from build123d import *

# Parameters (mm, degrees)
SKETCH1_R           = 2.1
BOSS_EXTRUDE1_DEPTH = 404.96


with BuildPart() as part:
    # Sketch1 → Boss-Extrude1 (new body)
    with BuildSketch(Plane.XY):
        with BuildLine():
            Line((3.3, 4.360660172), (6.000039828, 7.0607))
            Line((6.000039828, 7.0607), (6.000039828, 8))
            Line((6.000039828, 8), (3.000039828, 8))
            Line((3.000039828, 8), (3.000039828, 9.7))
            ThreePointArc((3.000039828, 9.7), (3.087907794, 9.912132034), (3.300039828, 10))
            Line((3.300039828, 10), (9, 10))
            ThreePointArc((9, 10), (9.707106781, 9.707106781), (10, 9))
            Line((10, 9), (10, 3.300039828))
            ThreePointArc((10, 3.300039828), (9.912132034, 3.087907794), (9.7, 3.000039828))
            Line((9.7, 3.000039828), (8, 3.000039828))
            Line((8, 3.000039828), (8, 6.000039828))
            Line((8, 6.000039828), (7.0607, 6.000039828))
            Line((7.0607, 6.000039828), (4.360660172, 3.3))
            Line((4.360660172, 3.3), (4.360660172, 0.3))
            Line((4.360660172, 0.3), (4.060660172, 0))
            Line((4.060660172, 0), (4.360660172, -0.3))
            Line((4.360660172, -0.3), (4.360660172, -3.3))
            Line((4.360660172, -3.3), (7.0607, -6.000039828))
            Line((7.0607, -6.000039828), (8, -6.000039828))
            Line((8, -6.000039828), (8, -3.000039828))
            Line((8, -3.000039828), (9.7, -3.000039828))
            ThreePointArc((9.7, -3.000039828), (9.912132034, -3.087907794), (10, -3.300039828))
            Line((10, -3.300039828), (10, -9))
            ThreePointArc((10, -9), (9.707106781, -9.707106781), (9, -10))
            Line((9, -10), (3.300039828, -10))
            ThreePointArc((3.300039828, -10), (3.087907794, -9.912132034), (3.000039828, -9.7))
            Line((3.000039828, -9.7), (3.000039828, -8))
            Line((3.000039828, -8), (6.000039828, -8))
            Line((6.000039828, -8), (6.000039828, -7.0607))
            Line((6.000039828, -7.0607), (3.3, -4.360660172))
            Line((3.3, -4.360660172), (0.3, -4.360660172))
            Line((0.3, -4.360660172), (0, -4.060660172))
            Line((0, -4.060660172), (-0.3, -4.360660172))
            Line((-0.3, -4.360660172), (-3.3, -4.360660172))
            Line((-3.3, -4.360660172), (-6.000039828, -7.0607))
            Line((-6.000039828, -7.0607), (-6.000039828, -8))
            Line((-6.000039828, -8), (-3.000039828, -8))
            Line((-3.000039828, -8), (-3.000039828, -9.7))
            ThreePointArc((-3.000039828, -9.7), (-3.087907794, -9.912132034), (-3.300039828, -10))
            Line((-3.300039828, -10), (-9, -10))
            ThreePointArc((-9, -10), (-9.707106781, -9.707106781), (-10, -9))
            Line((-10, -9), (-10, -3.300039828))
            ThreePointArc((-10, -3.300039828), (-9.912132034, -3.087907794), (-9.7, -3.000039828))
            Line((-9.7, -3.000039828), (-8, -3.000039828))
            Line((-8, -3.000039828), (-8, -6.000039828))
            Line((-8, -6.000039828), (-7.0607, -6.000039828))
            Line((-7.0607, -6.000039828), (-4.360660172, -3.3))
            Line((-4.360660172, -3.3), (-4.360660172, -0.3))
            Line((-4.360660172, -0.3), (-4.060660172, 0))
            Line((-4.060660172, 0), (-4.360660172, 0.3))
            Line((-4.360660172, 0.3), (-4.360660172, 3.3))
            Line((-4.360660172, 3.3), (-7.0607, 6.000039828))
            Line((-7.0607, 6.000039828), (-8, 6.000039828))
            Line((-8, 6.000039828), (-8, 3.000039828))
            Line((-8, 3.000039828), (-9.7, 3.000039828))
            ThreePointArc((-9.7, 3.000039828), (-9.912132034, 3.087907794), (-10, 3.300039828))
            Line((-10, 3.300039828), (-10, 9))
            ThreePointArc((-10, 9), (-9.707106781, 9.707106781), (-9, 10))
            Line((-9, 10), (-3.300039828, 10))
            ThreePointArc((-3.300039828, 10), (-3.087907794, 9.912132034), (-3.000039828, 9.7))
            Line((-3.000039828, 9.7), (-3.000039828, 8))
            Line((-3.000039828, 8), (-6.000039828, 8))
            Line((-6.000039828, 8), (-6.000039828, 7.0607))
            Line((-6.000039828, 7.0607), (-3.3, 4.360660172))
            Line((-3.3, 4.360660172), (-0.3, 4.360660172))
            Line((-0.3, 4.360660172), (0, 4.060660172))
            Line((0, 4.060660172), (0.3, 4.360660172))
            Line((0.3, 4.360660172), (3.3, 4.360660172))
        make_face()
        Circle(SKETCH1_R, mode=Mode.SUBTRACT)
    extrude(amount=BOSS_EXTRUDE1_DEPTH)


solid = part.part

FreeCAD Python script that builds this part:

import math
import FreeCAD as App
import Part
import Sketcher

V = App.Vector
Q = App.Units.Quantity

doc = App.newDocument("Part")
body = doc.addObject("PartDesign::Body", "Body")

sketch1 = body.newObject("Sketcher::SketchObject", "Sketch")
sketch1.AttachmentSupport = (doc.getObject("XY_Plane"), [""])
sketch1.MapMode = "FlatFace"
sketch1.addGeometry(Part.LineSegment(V(6.00004, 7.0607, 0), V(3.3, 4.36066, 0)), False)
sketch1.addGeometry(Part.LineSegment(V(3.3, 4.36066, 0), V(0.3, 4.36066, 0)), False)
sketch1.addGeometry(Part.LineSegment(V(0.3, 4.36066, 0), V(0, 4.06066, 0)), False)
sketch1.addGeometry(Part.LineSegment(V(0, 4.06066, 0), V(-0.3, 4.36066, 0)), False)
sketch1.addGeometry(Part.LineSegment(V(-0.3, 4.36066, 0), V(-3.3, 4.36066, 0)), False)
sketch1.addGeometry(Part.LineSegment(V(-3.3, 4.36066, 0), V(-6.00004, 7.0607, 0)), False)
sketch1.addGeometry(Part.LineSegment(V(-6.00004, 7.0607, 0), V(-6.00004, 8, 0)), False)
sketch1.addGeometry(Part.LineSegment(V(-6.00004, 8, 0), V(-3.00004, 8, 0)), False)
sketch1.addGeometry(Part.LineSegment(V(-3.00004, 8, 0), V(-3.00004, 9.7, 0)), False)
sketch1.addGeometry(Part.ArcOfCircle(Part.Circle(V(-3.30004, 9.7, 0), V(0, 0, 1), 0.3), math.radians(0), math.radians(90)), False)
sketch1.addGeometry(Part.LineSegment(V(-3.30004, 10, 0), V(-9, 10, 0)), False)
sketch1.addGeometry(Part.ArcOfCircle(Part.Circle(V(-9, 9, 0), V(0, 0, 1), 1), math.radians(90), math.radians(180)), False)
sketch1.addGeometry(Part.LineSegment(V(-10, 9, 0), V(-10, 3.30004, 0)), False)
sketch1.addGeometry(Part.ArcOfCircle(Part.Circle(V(-9.7, 3.30004, 0), V(0, 0, 1), 0.3), math.radians(-180), math.radians(-90)), False)
sketch1.addGeometry(Part.LineSegment(V(-9.7, 3.00004, 0), V(-8, 3.00004, 0)), False)
sketch1.addGeometry(Part.LineSegment(V(-8, 3.00004, 0), V(-8, 6.00004, 0)), False)
sketch1.addGeometry(Part.LineSegment(V(-8, 6.00004, 0), V(-7.0607, 6.00004, 0)), False)
sketch1.addGeometry(Part.LineSegment(V(-7.0607, 6.00004, 0), V(-4.36066, 3.3, 0)), False)
sketch1.addGeometry(Part.LineSegment(V(-4.36066, 3.3, 0), V(-4.36066, 0.3, 0)), False)
sketch1.addGeometry(Part.LineSegment(V(-4.36066, 0.3, 0), V(-4.06066, 0, 0)), False)
sketch1.addGeometry(Part.LineSegment(V(-4.06066, 0, 0), V(-4.36066, -0.3, 0)), False)
sketch1.addGeometry(Part.LineSegment(V(-4.36066, -0.3, 0), V(-4.36066, -3.3, 0)), False)
sketch1.addGeometry(Part.LineSegment(V(-4.36066, -3.3, 0), V(-7.0607, -6.00004, 0)), False)
sketch1.addGeometry(Part.LineSegment(V(-7.0607, -6.00004, 0), V(-8, -6.00004, 0)), False)
sketch1.addGeometry(Part.LineSegment(V(-8, -6.00004, 0), V(-8, -3.00004, 0)), False)
sketch1.addGeometry(Part.LineSegment(V(-8, -3.00004, 0), V(-9.7, -3.00004, 0)), False)
sketch1.addGeometry(Part.ArcOfCircle(Part.Circle(V(-9.7, -3.30004, 0), V(0, 0, 1), 0.3), math.radians(90), math.radians(180)), False)
sketch1.addGeometry(Part.LineSegment(V(-10, -3.30004, 0), V(-10, -9, 0)), False)
sketch1.addGeometry(Part.ArcOfCircle(Part.Circle(V(-9, -9, 0), V(0, 0, 1), 1), math.radians(-180), math.radians(-90)), False)
sketch1.addGeometry(Part.LineSegment(V(-9, -10, 0), V(-3.30004, -10, 0)), False)
sketch1.addGeometry(Part.ArcOfCircle(Part.Circle(V(-3.30004, -9.7, 0), V(0, 0, 1), 0.3), math.radians(-90), math.radians(0)), False)
sketch1.addGeometry(Part.LineSegment(V(-3.00004, -9.7, 0), V(-3.00004, -8, 0)), False)
sketch1.addGeometry(Part.LineSegment(V(-3.00004, -8, 0), V(-6.00004, -8, 0)), False)
sketch1.addGeometry(Part.LineSegment(V(-6.00004, -8, 0), V(-6.00004, -7.0607, 0)), False)
sketch1.addGeometry(Part.LineSegment(V(-6.00004, -7.0607, 0), V(-3.3, -4.36066, 0)), False)
sketch1.addGeometry(Part.LineSegment(V(-3.3, -4.36066, 0), V(-0.3, -4.36066, 0)), False)
sketch1.addGeometry(Part.LineSegment(V(-0.3, -4.36066, 0), V(0, -4.06066, 0)), False)
sketch1.addGeometry(Part.LineSegment(V(0, -4.06066, 0), V(0.3, -4.36066, 0)), False)
sketch1.addGeometry(Part.LineSegment(V(0.3, -4.36066, 0), V(3.3, -4.36066, 0)), False)
sketch1.addGeometry(Part.LineSegment(V(3.3, -4.36066, 0), V(6.00004, -7.0607, 0)), False)
sketch1.addGeometry(Part.LineSegment(V(6.00004, -7.0607, 0), V(6.00004, -8, 0)), False)
sketch1.addGeometry(Part.LineSegment(V(6.00004, -8, 0), V(3.00004, -8, 0)), False)
sketch1.addGeometry(Part.LineSegment(V(3.00004, -8, 0), V(3.00004, -9.7, 0)), False)
sketch1.addGeometry(Part.ArcOfCircle(Part.Circle(V(3.30004, -9.7, 0), V(0, 0, 1), 0.3), math.radians(-180), math.radians(-90)), False)
sketch1.addGeometry(Part.LineSegment(V(3.30004, -10, 0), V(9, -10, 0)), False)
sketch1.addGeometry(Part.ArcOfCircle(Part.Circle(V(9, -9, 0), V(0, 0, 1), 1), math.radians(-90), math.radians(0)), False)
sketch1.addGeometry(Part.LineSegment(V(10, -9, 0), V(10, -3.30004, 0)), False)
sketch1.addGeometry(Part.ArcOfCircle(Part.Circle(V(9.7, -3.30004, 0), V(0, 0, 1), 0.3), math.radians(0), math.radians(90)), False)
sketch1.addGeometry(Part.LineSegment(V(9.7, -3.00004, 0), V(8, -3.00004, 0)), False)
sketch1.addGeometry(Part.LineSegment(V(8, -3.00004, 0), V(8, -6.00004, 0)), False)
sketch1.addGeometry(Part.LineSegment(V(8, -6.00004, 0), V(7.0607, -6.00004, 0)), False)
sketch1.addGeometry(Part.LineSegment(V(7.0607, -6.00004, 0), V(4.36066, -3.3, 0)), False)
sketch1.addGeometry(Part.LineSegment(V(4.36066, -3.3, 0), V(4.36066, -0.3, 0)), False)
sketch1.addGeometry(Part.LineSegment(V(4.36066, -0.3, 0), V(4.06066, 0, 0)), False)
sketch1.addGeometry(Part.LineSegment(V(4.06066, 0, 0), V(4.36066, 0.3, 0)), False)
sketch1.addGeometry(Part.LineSegment(V(4.36066, 0.3, 0), V(4.36066, 3.3, 0)), False)
sketch1.addGeometry(Part.LineSegment(V(4.36066, 3.3, 0), V(7.0607, 6.00004, 0)), False)
sketch1.addGeometry(Part.LineSegment(V(7.0607, 6.00004, 0), V(8, 6.00004, 0)), False)
sketch1.addGeometry(Part.LineSegment(V(8, 6.00004, 0), V(8, 3.00004, 0)), False)
sketch1.addGeometry(Part.LineSegment(V(8, 3.00004, 0), V(9.7, 3.00004, 0)), False)
sketch1.addGeometry(Part.ArcOfCircle(Part.Circle(V(9.7, 3.30004, 0), V(0, 0, 1), 0.3), math.radians(-90), math.radians(0)), False)
sketch1.addGeometry(Part.LineSegment(V(10, 3.30004, 0), V(10, 9, 0)), False)
sketch1.addGeometry(Part.ArcOfCircle(Part.Circle(V(9, 9, 0), V(0, 0, 1), 1), math.radians(0), math.radians(90)), False)
sketch1.addGeometry(Part.LineSegment(V(9, 10, 0), V(3.30004, 10, 0)), False)
sketch1.addGeometry(Part.ArcOfCircle(Part.Circle(V(3.30004, 9.7, 0), V(0, 0, 1), 0.3), math.radians(90), math.radians(180)), False)
sketch1.addGeometry(Part.LineSegment(V(3.00004, 9.7, 0), V(3.00004, 8, 0)), False)
sketch1.addGeometry(Part.LineSegment(V(3.00004, 8, 0), V(6.00004, 8, 0)), False)
sketch1.addGeometry(Part.LineSegment(V(6.00004, 8, 0), V(6.00004, 7.0607, 0)), False)
sketch1.addGeometry(Part.Circle(V(0, 0, 0), V(0, 0, 1), 2.1), False)
sketch1.addConstraint(Sketcher.Constraint("Coincident", 0, 2, 1, 1))
sketch1.addConstraint(Sketcher.Constraint("Coincident", 1, 2, 2, 1))
sketch1.addConstraint(Sketcher.Constraint("Coincident", 2, 2, 3, 1))
sketch1.addConstraint(Sketcher.Constraint("Coincident", 3, 2, 4, 1))
sketch1.addConstraint(Sketcher.Constraint("Coincident", 4, 2, 5, 1))
sketch1.addConstraint(Sketcher.Constraint("Coincident", 5, 2, 6, 1))
sketch1.addConstraint(Sketcher.Constraint("Coincident", 6, 2, 7, 1))
sketch1.addConstraint(Sketcher.Constraint("Coincident", 7, 2, 8, 1))
sketch1.addConstraint(Sketcher.Constraint("Tangent", 8, 2, 9, 1))
sketch1.addConstraint(Sketcher.Constraint("Tangent", 9, 2, 10, 1))
sketch1.addConstraint(Sketcher.Constraint("Tangent", 10, 2, 11, 1))
sketch1.addConstraint(Sketcher.Constraint("Tangent", 11, 2, 12, 1))
sketch1.addConstraint(Sketcher.Constraint("Tangent", 12, 2, 13, 1))
sketch1.addConstraint(Sketcher.Constraint("Tangent", 13, 2, 14, 1))
sketch1.addConstraint(Sketcher.Constraint("Coincident", 14, 2, 15, 1))
sketch1.addConstraint(Sketcher.Constraint("Coincident", 15, 2, 16, 1))
sketch1.addConstraint(Sketcher.Constraint("Coincident", 16, 2, 17, 1))
sketch1.addConstraint(Sketcher.Constraint("Coincident", 17, 2, 18, 1))
sketch1.addConstraint(Sketcher.Constraint("Coincident", 18, 2, 19, 1))
sketch1.addConstraint(Sketcher.Constraint("Coincident", 19, 2, 20, 1))
sketch1.addConstraint(Sketcher.Constraint("Coincident", 20, 2, 21, 1))
sketch1.addConstraint(Sketcher.Constraint("Coincident", 21, 2, 22, 1))
sketch1.addConstraint(Sketcher.Constraint("Coincident", 22, 2, 23, 1))
sketch1.addConstraint(Sketcher.Constraint("Coincident", 23, 2, 24, 1))
sketch1.addConstraint(Sketcher.Constraint("Coincident", 24, 2, 25, 1))
sketch1.addConstraint(Sketcher.Constraint("Tangent", 25, 2, 26, 1))
sketch1.addConstraint(Sketcher.Constraint("Tangent", 26, 2, 27, 1))
sketch1.addConstraint(Sketcher.Constraint("Tangent", 27, 2, 28, 1))
sketch1.addConstraint(Sketcher.Constraint("Tangent", 28, 2, 29, 1))
sketch1.addConstraint(Sketcher.Constraint("Tangent", 29, 2, 30, 1))
sketch1.addConstraint(Sketcher.Constraint("Tangent", 30, 2, 31, 1))
sketch1.addConstraint(Sketcher.Constraint("Coincident", 31, 2, 32, 1))
sketch1.addConstraint(Sketcher.Constraint("Coincident", 32, 2, 33, 1))
sketch1.addConstraint(Sketcher.Constraint("Coincident", 33, 2, 34, 1))
sketch1.addConstraint(Sketcher.Constraint("Coincident", 34, 2, 35, 1))
sketch1.addConstraint(Sketcher.Constraint("Coincident", 35, 2, 36, 1))
sketch1.addConstraint(Sketcher.Constraint("Coincident", 36, 2, 37, 1))
sketch1.addConstraint(Sketcher.Constraint("Coincident", 37, 2, 38, 1))
sketch1.addConstraint(Sketcher.Constraint("Coincident", 38, 2, 39, 1))
sketch1.addConstraint(Sketcher.Constraint("Coincident", 39, 2, 40, 1))
sketch1.addConstraint(Sketcher.Constraint("Coincident", 40, 2, 41, 1))
sketch1.addConstraint(Sketcher.Constraint("Coincident", 41, 2, 42, 1))
sketch1.addConstraint(Sketcher.Constraint("Tangent", 42, 2, 43, 1))
sketch1.addConstraint(Sketcher.Constraint("Tangent", 43, 2, 44, 1))
sketch1.addConstraint(Sketcher.Constraint("Tangent", 44, 2, 45, 1))
sketch1.addConstraint(Sketcher.Constraint("Tangent", 45, 2, 46, 1))
sketch1.addConstraint(Sketcher.Constraint("Tangent", 46, 2, 47, 1))
sketch1.addConstraint(Sketcher.Constraint("Tangent", 47, 2, 48, 1))
sketch1.addConstraint(Sketcher.Constraint("Coincident", 48, 2, 49, 1))
sketch1.addConstraint(Sketcher.Constraint("Coincident", 49, 2, 50, 1))
sketch1.addConstraint(Sketcher.Constraint("Coincident", 50, 2, 51, 1))
sketch1.addConstraint(Sketcher.Constraint("Coincident", 51, 2, 52, 1))
sketch1.addConstraint(Sketcher.Constraint("Coincident", 52, 2, 53, 1))
sketch1.addConstraint(Sketcher.Constraint("Coincident", 53, 2, 54, 1))
sketch1.addConstraint(Sketcher.Constraint("Coincident", 54, 2, 55, 1))
sketch1.addConstraint(Sketcher.Constraint("Coincident", 55, 2, 56, 1))
sketch1.addConstraint(Sketcher.Constraint("Coincident", 56, 2, 57, 1))
sketch1.addConstraint(Sketcher.Constraint("Coincident", 57, 2, 58, 1))
sketch1.addConstraint(Sketcher.Constraint("Coincident", 58, 2, 59, 1))
sketch1.addConstraint(Sketcher.Constraint("Tangent", 59, 2, 60, 1))
sketch1.addConstraint(Sketcher.Constraint("Tangent", 60, 2, 61, 1))
sketch1.addConstraint(Sketcher.Constraint("Tangent", 61, 2, 62, 1))
sketch1.addConstraint(Sketcher.Constraint("Tangent", 62, 2, 63, 1))
sketch1.addConstraint(Sketcher.Constraint("Tangent", 63, 2, 64, 1))
sketch1.addConstraint(Sketcher.Constraint("Tangent", 64, 2, 65, 1))
sketch1.addConstraint(Sketcher.Constraint("Coincident", 65, 2, 66, 1))
sketch1.addConstraint(Sketcher.Constraint("Coincident", 66, 2, 67, 1))
sketch1.addConstraint(Sketcher.Constraint("Coincident", 67, 2, 0, 1))
sketch1.addConstraint(Sketcher.Constraint("Horizontal", 1))
sketch1.addConstraint(Sketcher.Constraint("Horizontal", 4))
sketch1.addConstraint(Sketcher.Constraint("Vertical", 6))
sketch1.addConstraint(Sketcher.Constraint("Horizontal", 7))
sketch1.addConstraint(Sketcher.Constraint("Vertical", 8))
sketch1.addConstraint(Sketcher.Constraint("Horizontal", 10))
sketch1.addConstraint(Sketcher.Constraint("Vertical", 12))
sketch1.addConstraint(Sketcher.Constraint("Horizontal", 14))
sketch1.addConstraint(Sketcher.Constraint("Vertical", 15))
sketch1.addConstraint(Sketcher.Constraint("Horizontal", 16))
sketch1.addConstraint(Sketcher.Constraint("Vertical", 18))
sketch1.addConstraint(Sketcher.Constraint("Vertical", 21))
sketch1.addConstraint(Sketcher.Constraint("Horizontal", 23))
sketch1.addConstraint(Sketcher.Constraint("Vertical", 24))
sketch1.addConstraint(Sketcher.Constraint("Horizontal", 25))
sketch1.addConstraint(Sketcher.Constraint("Vertical", 27))
sketch1.addConstraint(Sketcher.Constraint("Horizontal", 29))
sketch1.addConstraint(Sketcher.Constraint("Vertical", 31))
sketch1.addConstraint(Sketcher.Constraint("Horizontal", 32))
sketch1.addConstraint(Sketcher.Constraint("Vertical", 33))
sketch1.addConstraint(Sketcher.Constraint("Horizontal", 35))
sketch1.addConstraint(Sketcher.Constraint("Horizontal", 38))
sketch1.addConstraint(Sketcher.Constraint("Vertical", 40))
sketch1.addConstraint(Sketcher.Constraint("Horizontal", 41))
sketch1.addConstraint(Sketcher.Constraint("Vertical", 42))
sketch1.addConstraint(Sketcher.Constraint("Horizontal", 44))
sketch1.addConstraint(Sketcher.Constraint("Vertical", 46))
sketch1.addConstraint(Sketcher.Constraint("Horizontal", 48))
sketch1.addConstraint(Sketcher.Constraint("Vertical", 49))
sketch1.addConstraint(Sketcher.Constraint("Horizontal", 50))
sketch1.addConstraint(Sketcher.Constraint("Vertical", 52))
sketch1.addConstraint(Sketcher.Constraint("Vertical", 55))
sketch1.addConstraint(Sketcher.Constraint("Horizontal", 57))
sketch1.addConstraint(Sketcher.Constraint("Vertical", 58))
sketch1.addConstraint(Sketcher.Constraint("Horizontal", 59))
sketch1.addConstraint(Sketcher.Constraint("Vertical", 61))
sketch1.addConstraint(Sketcher.Constraint("Horizontal", 63))
sketch1.addConstraint(Sketcher.Constraint("Vertical", 65))
sketch1.addConstraint(Sketcher.Constraint("Horizontal", 66))
sketch1.addConstraint(Sketcher.Constraint("Vertical", 67))
sketch1.addConstraint(Sketcher.Constraint("Coincident", 68, 3, -1, 1))
sketch1.addConstraint(Sketcher.Constraint("Equal", 9, 13))
sketch1.addConstraint(Sketcher.Constraint("Equal", 13, 26))
sketch1.addConstraint(Sketcher.Constraint("Equal", 11, 28))
sketch1.addConstraint(Sketcher.Constraint("Equal", 26, 30))
sketch1.addConstraint(Sketcher.Constraint("Equal", 30, 43))
sketch1.addConstraint(Sketcher.Constraint("Equal", 28, 45))
sketch1.addConstraint(Sketcher.Constraint("Equal", 43, 47))
sketch1.addConstraint(Sketcher.Constraint("Equal", 47, 60))
sketch1.addConstraint(Sketcher.Constraint("Equal", 45, 62))
sketch1.addConstraint(Sketcher.Constraint("Equal", 60, 64))
sketch1.addConstraint(Sketcher.Constraint("Symmetric", 9, 3, 43, 3, -1, 1))
sketch1.addConstraint(Sketcher.Constraint("Symmetric", 13, 3, 47, 3, -1, 1))
sketch1.addConstraint(Sketcher.Constraint("Symmetric", 26, 3, 60, 3, -1, 1))
sketch1.addConstraint(Sketcher.Constraint("Symmetric", 30, 3, 64, 3, -1, 1))
sketch1.addConstraint(Sketcher.Constraint("Symmetric", 0, 2, 34, 2, -1, 1))
sketch1.addConstraint(Sketcher.Constraint("Symmetric", 2, 2, 36, 2, -1, 1))
sketch1.addConstraint(Sketcher.Constraint("Symmetric", 3, 2, 37, 2, -1, 1))
sketch1.addConstraint(Sketcher.Constraint("Symmetric", 5, 2, 39, 2, -1, 1))
sketch1.addConstraint(Sketcher.Constraint("Symmetric", 15, 2, 49, 2, -1, 1))
sketch1.addConstraint(Sketcher.Constraint("Symmetric", 17, 2, 51, 2, -1, 1))
sketch1.addConstraint(Sketcher.Constraint("Symmetric", 19, 2, 53, 2, -1, 1))
sketch1.addConstraint(Sketcher.Constraint("Symmetric", 20, 2, 54, 2, -1, 1))
sketch1.addConstraint(Sketcher.Constraint("Symmetric", 22, 2, 56, 2, -1, 1))
sketch1.addConstraint(Sketcher.Constraint("Symmetric", 32, 2, 66, 2, -1, 1))
sketch1.addConstraint(Sketcher.Constraint("Symmetric", 30, 3, 43, 3, -2))
sketch1.addConstraint(Sketcher.Constraint("Symmetric", 26, 3, 47, 3, -2))
sketch1.addConstraint(Sketcher.Constraint("Symmetric", 1, 2, 3, 2, -2))
sketch1.addConstraint(Sketcher.Constraint("Symmetric", 33, 2, 39, 2, -2))
sketch1.addConstraint(Sketcher.Constraint("Symmetric", 23, 2, 49, 2, -2))
sketch1.addConstraint(Sketcher.Constraint("Symmetric", 21, 2, 51, 2, -2))
sketch1.addConstraint(Sketcher.Constraint("PointOnObject", 2, 2, -2))
sketch1.addConstraint(Sketcher.Constraint("PointOnObject", 19, 2, -1))
sketch1.addConstraint(Sketcher.Constraint("Parallel", 0, 2))
sketch1.addConstraint(Sketcher.Constraint("Perpendicular", 2, 3))
sketch1.addConstraint(Sketcher.Constraint("Parallel", 3, 5))
sketch1.addConstraint(Sketcher.Constraint("Parallel", 5, 17))
sketch1.addConstraint(Sketcher.Constraint("Parallel", 17, 19))
sketch1.addConstraint(Sketcher.Constraint("Perpendicular", 19, 20))
sketch1.addConstraint(Sketcher.Constraint("Parallel", 20, 22))
sketch1.addConstraint(Sketcher.Constraint("Parallel", 22, 34))
sketch1.addConstraint(Sketcher.Constraint("Parallel", 34, 36))
sketch1.addConstraint(Sketcher.Constraint("Parallel", 37, 39))
sketch1.addConstraint(Sketcher.Constraint("Parallel", 39, 51))
sketch1.addConstraint(Sketcher.Constraint("Parallel", 51, 53))
sketch1.addConstraint(Sketcher.Constraint("Parallel", 54, 56))
sketch1.addConstraint(Sketcher.Constraint("Horizontal", 32, 2, 40, 2))
sketch1.addConstraint(Sketcher.Constraint("Horizontal", 7, 2, 65, 2))
sketch1.addConstraint(Sketcher.Constraint("Vertical", 49, 2, 57, 2))
sketch1.addConstraint(Sketcher.Constraint("Equal", 4, 7))
sketch1.addConstraint(Sketcher.Constraint("Equal", 57, 6))
sketch1.addConstraint(Sketcher.Constraint("Equal", 59, 8))
sketch1.addConstraint(Sketcher.Constraint("Equal", 63, 12))
sketch1.addConstraint(Sketcher.Constraint("Equal", 66, 15))
sketch1.addConstraint(Sketcher.Constraint("Equal", 15, 18))
sketch1.addConstraint(Sketcher.Constraint("Equal", 5, 17))
sketch1.addConstraint(Sketcher.Constraint("Equal", 3, 19))
sketch1.addConstraint(Sketcher.Constraint("Radius", 11, Q("1 mm")))
sketch1.addConstraint(Sketcher.Constraint("Diameter", 68, Q("4.2 mm")))
sketch1.addConstraint(Sketcher.Constraint("Radius", 9, Q("0.3 mm")))
sketch1.addConstraint(Sketcher.Constraint("DistanceX", 1, 2, 1, 1, Q("3 mm")))
sketch1.addConstraint(Sketcher.Constraint("DistanceX", 14, 1, 14, 2, Q("1.7 mm")))
sketch1.addConstraint(Sketcher.Constraint("DistanceX", 11, 3, -1, 1, Q("9 mm")))
sketch1.addConstraint(Sketcher.Constraint("DistanceX", -1, 1, 0, 2, Q("3.3 mm")))
sketch1.addConstraint(Sketcher.Constraint("DistanceX", 16, 1, 16, 2, Q("0.9393 mm")))
sketch1.addConstraint(Sketcher.Constraint("DistanceX", 10, 2, 10, 1, Q("5.69996 mm")))
pad1 = body.newObject("PartDesign::Pad", "Pad")
pad1.Profile = sketch1
pad1.Length = 404.96

doc.recompute()
